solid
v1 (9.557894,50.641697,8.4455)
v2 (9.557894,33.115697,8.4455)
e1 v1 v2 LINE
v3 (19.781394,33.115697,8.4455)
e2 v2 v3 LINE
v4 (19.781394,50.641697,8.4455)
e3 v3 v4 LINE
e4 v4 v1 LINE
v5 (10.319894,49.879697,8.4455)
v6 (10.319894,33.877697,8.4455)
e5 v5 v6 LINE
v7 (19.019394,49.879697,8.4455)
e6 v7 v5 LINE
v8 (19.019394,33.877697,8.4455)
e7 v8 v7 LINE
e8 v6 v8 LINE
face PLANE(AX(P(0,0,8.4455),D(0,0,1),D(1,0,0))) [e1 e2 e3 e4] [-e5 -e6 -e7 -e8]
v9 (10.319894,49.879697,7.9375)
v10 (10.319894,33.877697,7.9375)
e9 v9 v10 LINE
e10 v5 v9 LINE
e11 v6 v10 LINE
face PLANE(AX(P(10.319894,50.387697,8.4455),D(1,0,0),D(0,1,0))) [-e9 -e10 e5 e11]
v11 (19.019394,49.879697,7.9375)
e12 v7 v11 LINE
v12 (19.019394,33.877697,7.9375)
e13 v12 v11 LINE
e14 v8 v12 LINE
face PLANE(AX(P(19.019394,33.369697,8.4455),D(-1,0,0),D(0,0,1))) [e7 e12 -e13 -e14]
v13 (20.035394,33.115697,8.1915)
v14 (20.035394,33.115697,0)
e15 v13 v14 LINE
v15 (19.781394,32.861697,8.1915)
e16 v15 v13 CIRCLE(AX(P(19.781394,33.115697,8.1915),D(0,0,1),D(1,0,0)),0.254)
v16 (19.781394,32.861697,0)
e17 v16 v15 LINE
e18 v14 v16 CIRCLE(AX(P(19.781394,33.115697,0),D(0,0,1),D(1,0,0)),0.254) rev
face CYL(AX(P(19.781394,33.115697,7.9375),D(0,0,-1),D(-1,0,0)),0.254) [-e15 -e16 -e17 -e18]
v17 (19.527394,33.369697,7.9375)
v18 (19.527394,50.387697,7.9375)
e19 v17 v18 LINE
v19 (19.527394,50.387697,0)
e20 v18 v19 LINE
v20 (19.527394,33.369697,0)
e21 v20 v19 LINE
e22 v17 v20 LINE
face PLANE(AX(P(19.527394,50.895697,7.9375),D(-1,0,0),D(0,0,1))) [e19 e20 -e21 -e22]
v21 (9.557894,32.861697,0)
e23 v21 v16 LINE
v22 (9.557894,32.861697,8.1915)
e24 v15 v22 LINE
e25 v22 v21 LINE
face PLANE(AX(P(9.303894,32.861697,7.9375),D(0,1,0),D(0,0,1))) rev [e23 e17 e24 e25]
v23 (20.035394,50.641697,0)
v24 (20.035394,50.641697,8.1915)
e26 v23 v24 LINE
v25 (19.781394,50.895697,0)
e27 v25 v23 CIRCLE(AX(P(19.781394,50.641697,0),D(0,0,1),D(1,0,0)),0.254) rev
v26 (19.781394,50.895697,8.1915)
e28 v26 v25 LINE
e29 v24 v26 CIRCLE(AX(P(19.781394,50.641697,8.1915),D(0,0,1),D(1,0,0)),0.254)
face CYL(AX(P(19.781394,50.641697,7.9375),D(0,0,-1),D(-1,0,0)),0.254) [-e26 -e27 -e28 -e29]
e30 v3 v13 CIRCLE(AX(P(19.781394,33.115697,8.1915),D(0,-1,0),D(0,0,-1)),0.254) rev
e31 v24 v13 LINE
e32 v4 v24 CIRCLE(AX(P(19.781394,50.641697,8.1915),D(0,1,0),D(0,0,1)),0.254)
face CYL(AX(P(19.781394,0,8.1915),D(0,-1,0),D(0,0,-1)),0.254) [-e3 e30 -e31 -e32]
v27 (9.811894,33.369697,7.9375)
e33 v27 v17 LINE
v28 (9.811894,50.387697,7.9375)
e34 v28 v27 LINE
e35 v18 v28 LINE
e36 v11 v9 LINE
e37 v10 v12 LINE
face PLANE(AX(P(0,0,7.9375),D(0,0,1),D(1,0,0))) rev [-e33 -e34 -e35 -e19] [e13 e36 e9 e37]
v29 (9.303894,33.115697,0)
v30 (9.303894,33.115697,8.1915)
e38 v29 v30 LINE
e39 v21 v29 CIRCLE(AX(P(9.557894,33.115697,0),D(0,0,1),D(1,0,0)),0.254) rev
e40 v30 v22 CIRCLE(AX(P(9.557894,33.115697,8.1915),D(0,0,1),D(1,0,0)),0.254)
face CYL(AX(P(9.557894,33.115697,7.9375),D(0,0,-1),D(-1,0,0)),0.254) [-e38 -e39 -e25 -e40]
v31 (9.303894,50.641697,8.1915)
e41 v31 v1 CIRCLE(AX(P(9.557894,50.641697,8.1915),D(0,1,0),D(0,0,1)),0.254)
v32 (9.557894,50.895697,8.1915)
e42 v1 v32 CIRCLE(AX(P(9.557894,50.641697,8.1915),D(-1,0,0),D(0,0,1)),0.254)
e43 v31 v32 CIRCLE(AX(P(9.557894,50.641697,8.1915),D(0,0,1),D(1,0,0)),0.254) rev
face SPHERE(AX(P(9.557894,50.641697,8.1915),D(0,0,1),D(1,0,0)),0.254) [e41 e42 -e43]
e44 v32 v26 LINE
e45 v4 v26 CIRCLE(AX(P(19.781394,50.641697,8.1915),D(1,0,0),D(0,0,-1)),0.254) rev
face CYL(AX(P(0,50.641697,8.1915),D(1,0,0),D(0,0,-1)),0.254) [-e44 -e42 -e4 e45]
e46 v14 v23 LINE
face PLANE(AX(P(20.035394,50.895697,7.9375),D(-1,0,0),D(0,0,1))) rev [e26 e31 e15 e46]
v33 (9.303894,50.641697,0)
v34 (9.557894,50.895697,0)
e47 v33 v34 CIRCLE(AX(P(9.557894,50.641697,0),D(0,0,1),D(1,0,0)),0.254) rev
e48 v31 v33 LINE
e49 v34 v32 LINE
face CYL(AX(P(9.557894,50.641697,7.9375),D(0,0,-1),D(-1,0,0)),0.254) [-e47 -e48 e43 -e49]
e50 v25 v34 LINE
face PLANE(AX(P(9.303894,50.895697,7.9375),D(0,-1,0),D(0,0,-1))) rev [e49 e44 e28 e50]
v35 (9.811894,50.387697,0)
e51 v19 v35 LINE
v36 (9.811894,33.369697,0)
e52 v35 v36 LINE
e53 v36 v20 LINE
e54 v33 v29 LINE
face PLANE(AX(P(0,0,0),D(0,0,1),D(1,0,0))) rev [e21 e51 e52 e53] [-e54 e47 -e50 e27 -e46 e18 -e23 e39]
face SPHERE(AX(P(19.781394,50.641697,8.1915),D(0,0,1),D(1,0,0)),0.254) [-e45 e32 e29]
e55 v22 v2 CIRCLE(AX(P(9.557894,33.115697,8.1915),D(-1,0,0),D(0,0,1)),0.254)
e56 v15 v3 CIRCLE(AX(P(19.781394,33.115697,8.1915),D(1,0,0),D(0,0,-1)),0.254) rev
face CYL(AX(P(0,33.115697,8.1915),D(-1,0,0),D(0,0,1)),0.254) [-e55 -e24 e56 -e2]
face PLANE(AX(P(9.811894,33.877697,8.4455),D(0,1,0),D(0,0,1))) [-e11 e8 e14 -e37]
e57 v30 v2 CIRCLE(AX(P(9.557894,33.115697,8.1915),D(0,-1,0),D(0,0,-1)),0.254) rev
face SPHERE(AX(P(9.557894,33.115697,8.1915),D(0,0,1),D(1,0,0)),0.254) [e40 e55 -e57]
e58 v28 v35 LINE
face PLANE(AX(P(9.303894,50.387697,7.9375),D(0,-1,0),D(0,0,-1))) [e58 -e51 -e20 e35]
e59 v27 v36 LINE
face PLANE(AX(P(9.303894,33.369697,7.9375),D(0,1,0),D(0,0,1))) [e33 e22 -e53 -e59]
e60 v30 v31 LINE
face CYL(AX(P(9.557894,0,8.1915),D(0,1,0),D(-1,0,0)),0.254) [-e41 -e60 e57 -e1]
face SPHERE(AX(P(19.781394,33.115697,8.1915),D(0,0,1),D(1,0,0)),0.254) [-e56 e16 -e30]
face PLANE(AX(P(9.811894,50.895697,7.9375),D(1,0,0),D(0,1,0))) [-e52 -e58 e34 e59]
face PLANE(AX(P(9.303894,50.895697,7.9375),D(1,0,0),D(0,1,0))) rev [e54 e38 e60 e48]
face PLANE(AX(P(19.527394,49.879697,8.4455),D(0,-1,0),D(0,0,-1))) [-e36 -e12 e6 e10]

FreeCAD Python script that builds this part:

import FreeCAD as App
import Part
import Sketcher
Q = App.Units.Quantity


def edges_at(feature, points):
    """Names of the edges that pass closest to the given points."""
    edges = feature.Shape.Edges
    near = lambda p: min(range(len(edges)), key=lambda i: edges[i].distToShape(Part.Vertex(*p))[0])
    return sorted({f"Edge{near(p) + 1}" for p in points})


def faces_at(feature, points):
    """Names of the faces that lie closest to the given points."""
    faces = feature.Shape.Faces
    near = lambda p: min(range(len(faces)), key=lambda i: faces[i].distToShape(Part.Vertex(*p))[0])
    return sorted({f"Face{near(p) + 1}" for p in points})

doc = App.newDocument("Part")
body = doc.addObject("PartDesign::Body", "Body")

# Sketch on XY plane
sketch1 = doc.addObject("Sketcher::SketchObject", "Sketch")
body.addObject(sketch1)
sketch1.AttachmentSupport = (doc.XY_Plane, [""])
sketch1.MapMode = "FlatFace"
sketch1.addGeometry([
    Part.LineSegment(App.Vector(9, 51, 0), App.Vector(9, 33, 0)),
    Part.LineSegment(App.Vector(9, 33, 0), App.Vector(20, 33, 0)),
    Part.LineSegment(App.Vector(20, 33, 0), App.Vector(20, 51, 0)),
    Part.LineSegment(App.Vector(20, 51, 0), App.Vector(9, 51, 0)),
], False)
sketch1.addConstraint([
    Sketcher.Constraint("Coincident", 0, 2, 1, 1),
    Sketcher.Constraint("Coincident", 1, 2, 2, 1),
    Sketcher.Constraint("Coincident", 2, 2, 3, 1),
    Sketcher.Constraint("Coincident", 3, 2, 0, 1),
    Sketcher.Constraint("Vertical", 0),
    Sketcher.Constraint("Horizontal", 1),
    Sketcher.Constraint("Vertical", 2),
    Sketcher.Constraint("Horizontal", 3),
    Sketcher.Constraint("DistanceY", 0, 2, 0, 1, Q("0.71 in")),
    Sketcher.Constraint("DistanceX", 1, 1, 1, 2, Q("0.4225 in")),
    Sketcher.Constraint("DistanceX", -1, 1, 0, 2, 9.303894),
    Sketcher.Constraint("DistanceY", -1, 1, 0, 2, 32.861697),
])
pad1 = doc.addObject("PartDesign::Pad", "Pad")
body.addObject(pad1)
pad1.Profile = sketch1
pad1.Length = Q("0.3125 in")
doc.recompute()

thickness = doc.addObject("PartDesign::Thickness", "Thickness")
body.addObject(thickness)
thickness.Base = (pad1, faces_at(pad1, [(14.67, 41.879, 7.938), (14.67, 41.879, 0)]))
thickness.Value = Q("0.02 in")
thickness.Reversed = True
thickness.Join = "Intersection"

# Sketch on XY plane
sketch2 = doc.addObject("Sketcher::SketchObject", "Sketch001")
body.addObject(sketch2)
sketch2.AttachmentSupport = (doc.XY_Plane, [""])
sketch2.MapMode = "FlatFace"
sketch2.AttachmentOffset = App.Placement(App.Vector(0, 0, 0.3125 * 25.4), App.Rotation())
sketch2.addGeometry([
    Part.LineSegment(App.Vector(9, 51, 0), App.Vector(9, 33, 0)),  # 0
    Part.LineSegment(App.Vector(9, 33, 0), App.Vector(20, 33, 0)),  # 1
    Part.LineSegment(App.Vector(20, 33, 0), App.Vector(20, 51, 0)),  # 2
    Part.LineSegment(App.Vector(20, 51, 0), App.Vector(9, 51, 0)),  # 3
    Part.LineSegment(App.Vector(19, 34, 0), App.Vector(10, 34, 0)),  # 4
    Part.LineSegment(App.Vector(10, 34, 0), App.Vector(10, 50, 0)),  # 5
    Part.LineSegment(App.Vector(10, 50, 0), App.Vector(19, 50, 0)),  # 6
    Part.LineSegment(App.Vector(19, 50, 0), App.Vector(19, 34, 0)),  # 7
], False)
sketch2.addConstraint([
    Sketcher.Constraint("Coincident", 0, 2, 1, 1),
    Sketcher.Constraint("Coincident", 1, 2, 2, 1),
    Sketcher.Constraint("Coincident", 2, 2, 3, 1),
    Sketcher.Constraint("Coincident", 3, 2, 0, 1),
    Sketcher.Constraint("Coincident", 4, 2, 5, 1),
    Sketcher.Constraint("Coincident", 5, 2, 6, 1),
    Sketcher.Constraint("Coincident", 6, 2, 7, 1),
    Sketcher.Constraint("Coincident", 7, 2, 4, 1),
    Sketcher.Constraint("Vertical", 0),
    Sketcher.Constraint("Horizontal", 1),
    Sketcher.Constraint("Vertical", 2),
    Sketcher.Constraint("Horizontal", 3),
    Sketcher.Constraint("Horizontal", 4),
    Sketcher.Constraint("Vertical", 5),
    Sketcher.Constraint("Horizontal", 6),
    Sketcher.Constraint("Vertical", 7),
    Sketcher.Constraint("DistanceY", 0, 2, 0, 1, Q("0.71 in")),
    Sketcher.Constraint("DistanceY", 5, 1, 5, 2, Q("0.63 in")),
    Sketcher.Constraint("DistanceX", 0, 2, 4, 2, Q("0.04 in")),
    Sketcher.Constraint("DistanceY", 0, 2, 4, 2, Q("0.04 in")),
    Sketcher.Constraint("DistanceX", 6, 2, 2, 2, Q("0.04 in")),
    Sketcher.Constraint("DistanceX", 1, 1, 1, 2, Q("0.4225 in")),
    Sketcher.Constraint("DistanceX", -1, 1, 0, 2, 9.303894),
    Sketcher.Constraint("DistanceY", -1, 1, 0, 2, 32.861697),
])
pad2 = doc.addObject("PartDesign::Pad", "Pad001")
body.addObject(pad2)
pad2.Profile = sketch2
pad2.Length = Q("0.02 in")
doc.recompute()

fillet = doc.addObject("PartDesign::Fillet", "Fillet")
body.addObject(fillet)
fillet.Base = (pad2, edges_at(pad2, [
    (14.67, 32.862, 8.445),
    (20.035, 41.879, 8.445),
    (14.67, 50.896, 8.445),
    (9.304, 41.879, 8.445),
    (9.304, 50.896, 4.223),
    (20.035, 50.896, 4.223),
    (20.035, 32.862, 4.223),
    (9.304, 32.862, 4.223),
]))
fillet.Radius = Q("0.01 in")

doc.recompute()
